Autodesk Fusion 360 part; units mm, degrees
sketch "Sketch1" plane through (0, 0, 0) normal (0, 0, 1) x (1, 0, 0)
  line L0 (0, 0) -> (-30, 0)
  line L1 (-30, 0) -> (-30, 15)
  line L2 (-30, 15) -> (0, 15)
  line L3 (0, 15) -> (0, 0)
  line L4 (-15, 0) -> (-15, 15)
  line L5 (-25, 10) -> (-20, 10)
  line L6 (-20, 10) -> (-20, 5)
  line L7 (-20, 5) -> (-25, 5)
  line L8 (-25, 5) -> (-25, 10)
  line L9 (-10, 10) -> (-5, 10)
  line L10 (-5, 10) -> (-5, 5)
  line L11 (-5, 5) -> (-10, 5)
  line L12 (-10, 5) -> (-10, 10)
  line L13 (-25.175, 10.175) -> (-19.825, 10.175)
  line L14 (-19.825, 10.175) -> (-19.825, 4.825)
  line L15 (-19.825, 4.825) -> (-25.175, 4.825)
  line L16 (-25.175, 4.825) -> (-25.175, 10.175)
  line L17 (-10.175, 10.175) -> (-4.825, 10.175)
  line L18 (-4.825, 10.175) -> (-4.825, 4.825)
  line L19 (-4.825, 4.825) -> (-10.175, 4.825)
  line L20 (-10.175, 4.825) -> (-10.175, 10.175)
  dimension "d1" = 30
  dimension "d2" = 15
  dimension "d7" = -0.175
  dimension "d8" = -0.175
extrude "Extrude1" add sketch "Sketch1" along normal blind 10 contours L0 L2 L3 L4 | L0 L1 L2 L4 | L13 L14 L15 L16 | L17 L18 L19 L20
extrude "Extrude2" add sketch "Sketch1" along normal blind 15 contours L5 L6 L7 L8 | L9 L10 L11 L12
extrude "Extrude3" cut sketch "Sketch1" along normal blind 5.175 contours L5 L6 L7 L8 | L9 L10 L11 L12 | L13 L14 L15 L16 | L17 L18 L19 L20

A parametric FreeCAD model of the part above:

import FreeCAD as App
import Part
import Sketcher
from FreeCAD import Vector


def add_polygon(sketch, points):
    """Adds a closed chain of lines whose ends are joined by coincident constraints."""
    first, n = sketch.GeometryCount, len(points)
    for a, b in zip(points, points[1:] + points[:1]):
        sketch.addGeometry(Part.LineSegment(App.Vector(*a, 0), App.Vector(*b, 0)), False)
    for i in range(n):
        sketch.addConstraint(Sketcher.Constraint("Coincident", first + i, 2, first + (i + 1) % n, 1))

doc = App.newDocument("Part")
params = doc.addObject("Spreadsheet::Sheet", "Params")
for row, (alias, value) in enumerate([
    ("sketch1_width", "30 mm"),
    ("sketch1_height", "15 mm"),
    ("sketch1_width2", "5 mm"),
    ("pad1_length", "10 mm"),
    ("sketch2_width", "5 mm"),
    ("pad2_length", "15 mm"),
    ("sketch3_width", "5.35 mm"),
    ("pocket1_length", "5.175 mm"),
], start=1):
    params.set(f"A{row}", alias)
    params.set(f"B{row}", "=" + value)
    params.setAlias(f"B{row}", alias)

body = doc.addObject("PartDesign::Body", "Body")

sketch1 = body.newObject("Sketcher::SketchObject", "Sketch")
sketch1.AttachmentSupport = (doc.getObject("XY_Plane"), [""])
sketch1.MapMode = "FlatFace"
add_polygon(sketch1, [(0, 0), (0, 15), (-30, 15), (-30, 0)])
add_polygon(sketch1, [(-10, 5), (-10, 10), (-5, 10), (-5, 5)])
add_polygon(sketch1, [(-25, 10), (-20, 10), (-20, 5), (-25, 5)])
sketch1.addConstraint([
    Sketcher.Constraint("Vertical", 0),
    Sketcher.Constraint("Horizontal", 1),
    Sketcher.Constraint("Vertical", 2),
    Sketcher.Constraint("Horizontal", 3),
    Sketcher.Constraint("Vertical", 4),
    Sketcher.Constraint("Horizontal", 5),
    Sketcher.Constraint("Vertical", 6),
    Sketcher.Constraint("Horizontal", 7),
    Sketcher.Constraint("Horizontal", 8),
    Sketcher.Constraint("Vertical", 9),
    Sketcher.Constraint("Horizontal", 10),
    Sketcher.Constraint("Vertical", 11),
    Sketcher.Constraint("Coincident", 3, 2, -1, 1),
    Sketcher.Constraint("Horizontal", 5, 2, 8, 2),
    Sketcher.Constraint("Horizontal", 7, 2, 9, 2),
    Sketcher.Constraint("Equal", 7, 8),
    Sketcher.Constraint("Equal", 10, 4),
    Sketcher.Constraint("DistanceX", 1, 2, 1, 1, 30.0),
    Sketcher.Constraint("DistanceY", 0, 1, 0, 2, 15.0),
    Sketcher.Constraint("DistanceX", 8, 2, 5, 2, 15.0),
    Sketcher.Constraint("DistanceX", 5, 1, 5, 2, 5.0),
    Sketcher.Constraint("DistanceX", 4, 2, -1, 1, 10.0),
    Sketcher.Constraint("DistanceY", -1, 1, 4, 2, 10.0),
])
sketch1.setExpression("Constraints[29]", "Params.sketch1_width")
sketch1.setExpression("Constraints[30]", "Params.sketch1_height")
sketch1.setExpression("Constraints[32]", "Params.sketch1_width2")
pad1 = body.newObject("PartDesign::Pad", "Pad")
pad1.Profile = sketch1
pad1.setExpression("Length", "Params.pad1_length")

sketch2 = body.newObject("Sketcher::SketchObject", "Sketch001")
sketch2.AttachmentSupport = (doc.getObject("XY_Plane"), [""])
sketch2.MapMode = "FlatFace"
add_polygon(sketch2, [(-20, 10), (-25, 10), (-25, 5), (-20, 5)])
add_polygon(sketch2, [(-5, 10), (-10, 10), (-10, 5), (-5, 5)])
sketch2.addConstraint([
    Sketcher.Constraint("Horizontal", 0),
    Sketcher.Constraint("Vertical", 1),
    Sketcher.Constraint("Horizontal", 2),
    Sketcher.Constraint("Vertical", 3),
    Sketcher.Constraint("Horizontal", 4),
    Sketcher.Constraint("Vertical", 5),
    Sketcher.Constraint("Horizontal", 6),
    Sketcher.Constraint("Vertical", 7),
    Sketcher.Constraint("Horizontal", 3, 2, 4, 2),
    Sketcher.Constraint("Horizontal", 2, 2, 5, 2),
    Sketcher.Constraint("Equal", 2, 4),
    Sketcher.Constraint("Equal", 6, 1),
    Sketcher.Constraint("DistanceX", 0, 2, 4, 2, 15.0),
    Sketcher.Constraint("DistanceX", 0, 2, 0, 1, 5.0),
    Sketcher.Constraint("DistanceX", 0, 2, -1, 1, 25.0),
    Sketcher.Constraint("DistanceY", -1, 1, 0, 2, 10.0),
])
sketch2.setExpression("Constraints[21]", "Params.sketch2_width")
pad2 = body.newObject("PartDesign::Pad", "Pad001")
pad2.Profile = sketch2
pad2.setExpression("Length", "Params.pad2_length")

sketch3 = body.newObject("Sketcher::SketchObject", "Sketch002")
sketch3.AttachmentSupport = (doc.getObject("XY_Plane"), [""])
sketch3.MapMode = "FlatFace"
add_polygon(sketch3, [(-20, 10), (-25, 10), (-25, 5), (-20, 5)])
add_polygon(sketch3, [(-5, 10), (-10, 10), (-10, 5), (-5, 5)])
sketch3.addConstraint([
    Sketcher.Constraint("Horizontal", 0),
    Sketcher.Constraint("Vertical", 1),
    Sketcher.Constraint("Horizontal", 2),
    Sketcher.Constraint("Vertical", 3),
    Sketcher.Constraint("Horizontal", 4),
    Sketcher.Constraint("Vertical", 5),
    Sketcher.Constraint("Horizontal", 6),
    Sketcher.Constraint("Vertical", 7),
    Sketcher.Constraint("Horizontal", 3, 2, 4, 2),
    Sketcher.Constraint("Horizontal", 2, 2, 5, 2),
    Sketcher.Constraint("Equal", 2, 4),
    Sketcher.Constraint("Equal", 6, 1),
    Sketcher.Constraint("DistanceX", 0, 2, 4, 2, 15.0),
    Sketcher.Constraint("DistanceX", 0, 2, 0, 1, 5.35),
    Sketcher.Constraint("DistanceX", 0, 2, -1, 1, 25.175),
    Sketcher.Constraint("DistanceY", -1, 1, 0, 2, 10.175),
])
sketch3.setExpression("Constraints[21]", "Params.sketch3_width")
pocket1 = body.newObject("PartDesign::Pocket", "Pocket")
pocket1.Profile = sketch3
pocket1.setExpression("Length", "Params.pocket1_length")
pocket1.Reversed = True

doc.recompute()
